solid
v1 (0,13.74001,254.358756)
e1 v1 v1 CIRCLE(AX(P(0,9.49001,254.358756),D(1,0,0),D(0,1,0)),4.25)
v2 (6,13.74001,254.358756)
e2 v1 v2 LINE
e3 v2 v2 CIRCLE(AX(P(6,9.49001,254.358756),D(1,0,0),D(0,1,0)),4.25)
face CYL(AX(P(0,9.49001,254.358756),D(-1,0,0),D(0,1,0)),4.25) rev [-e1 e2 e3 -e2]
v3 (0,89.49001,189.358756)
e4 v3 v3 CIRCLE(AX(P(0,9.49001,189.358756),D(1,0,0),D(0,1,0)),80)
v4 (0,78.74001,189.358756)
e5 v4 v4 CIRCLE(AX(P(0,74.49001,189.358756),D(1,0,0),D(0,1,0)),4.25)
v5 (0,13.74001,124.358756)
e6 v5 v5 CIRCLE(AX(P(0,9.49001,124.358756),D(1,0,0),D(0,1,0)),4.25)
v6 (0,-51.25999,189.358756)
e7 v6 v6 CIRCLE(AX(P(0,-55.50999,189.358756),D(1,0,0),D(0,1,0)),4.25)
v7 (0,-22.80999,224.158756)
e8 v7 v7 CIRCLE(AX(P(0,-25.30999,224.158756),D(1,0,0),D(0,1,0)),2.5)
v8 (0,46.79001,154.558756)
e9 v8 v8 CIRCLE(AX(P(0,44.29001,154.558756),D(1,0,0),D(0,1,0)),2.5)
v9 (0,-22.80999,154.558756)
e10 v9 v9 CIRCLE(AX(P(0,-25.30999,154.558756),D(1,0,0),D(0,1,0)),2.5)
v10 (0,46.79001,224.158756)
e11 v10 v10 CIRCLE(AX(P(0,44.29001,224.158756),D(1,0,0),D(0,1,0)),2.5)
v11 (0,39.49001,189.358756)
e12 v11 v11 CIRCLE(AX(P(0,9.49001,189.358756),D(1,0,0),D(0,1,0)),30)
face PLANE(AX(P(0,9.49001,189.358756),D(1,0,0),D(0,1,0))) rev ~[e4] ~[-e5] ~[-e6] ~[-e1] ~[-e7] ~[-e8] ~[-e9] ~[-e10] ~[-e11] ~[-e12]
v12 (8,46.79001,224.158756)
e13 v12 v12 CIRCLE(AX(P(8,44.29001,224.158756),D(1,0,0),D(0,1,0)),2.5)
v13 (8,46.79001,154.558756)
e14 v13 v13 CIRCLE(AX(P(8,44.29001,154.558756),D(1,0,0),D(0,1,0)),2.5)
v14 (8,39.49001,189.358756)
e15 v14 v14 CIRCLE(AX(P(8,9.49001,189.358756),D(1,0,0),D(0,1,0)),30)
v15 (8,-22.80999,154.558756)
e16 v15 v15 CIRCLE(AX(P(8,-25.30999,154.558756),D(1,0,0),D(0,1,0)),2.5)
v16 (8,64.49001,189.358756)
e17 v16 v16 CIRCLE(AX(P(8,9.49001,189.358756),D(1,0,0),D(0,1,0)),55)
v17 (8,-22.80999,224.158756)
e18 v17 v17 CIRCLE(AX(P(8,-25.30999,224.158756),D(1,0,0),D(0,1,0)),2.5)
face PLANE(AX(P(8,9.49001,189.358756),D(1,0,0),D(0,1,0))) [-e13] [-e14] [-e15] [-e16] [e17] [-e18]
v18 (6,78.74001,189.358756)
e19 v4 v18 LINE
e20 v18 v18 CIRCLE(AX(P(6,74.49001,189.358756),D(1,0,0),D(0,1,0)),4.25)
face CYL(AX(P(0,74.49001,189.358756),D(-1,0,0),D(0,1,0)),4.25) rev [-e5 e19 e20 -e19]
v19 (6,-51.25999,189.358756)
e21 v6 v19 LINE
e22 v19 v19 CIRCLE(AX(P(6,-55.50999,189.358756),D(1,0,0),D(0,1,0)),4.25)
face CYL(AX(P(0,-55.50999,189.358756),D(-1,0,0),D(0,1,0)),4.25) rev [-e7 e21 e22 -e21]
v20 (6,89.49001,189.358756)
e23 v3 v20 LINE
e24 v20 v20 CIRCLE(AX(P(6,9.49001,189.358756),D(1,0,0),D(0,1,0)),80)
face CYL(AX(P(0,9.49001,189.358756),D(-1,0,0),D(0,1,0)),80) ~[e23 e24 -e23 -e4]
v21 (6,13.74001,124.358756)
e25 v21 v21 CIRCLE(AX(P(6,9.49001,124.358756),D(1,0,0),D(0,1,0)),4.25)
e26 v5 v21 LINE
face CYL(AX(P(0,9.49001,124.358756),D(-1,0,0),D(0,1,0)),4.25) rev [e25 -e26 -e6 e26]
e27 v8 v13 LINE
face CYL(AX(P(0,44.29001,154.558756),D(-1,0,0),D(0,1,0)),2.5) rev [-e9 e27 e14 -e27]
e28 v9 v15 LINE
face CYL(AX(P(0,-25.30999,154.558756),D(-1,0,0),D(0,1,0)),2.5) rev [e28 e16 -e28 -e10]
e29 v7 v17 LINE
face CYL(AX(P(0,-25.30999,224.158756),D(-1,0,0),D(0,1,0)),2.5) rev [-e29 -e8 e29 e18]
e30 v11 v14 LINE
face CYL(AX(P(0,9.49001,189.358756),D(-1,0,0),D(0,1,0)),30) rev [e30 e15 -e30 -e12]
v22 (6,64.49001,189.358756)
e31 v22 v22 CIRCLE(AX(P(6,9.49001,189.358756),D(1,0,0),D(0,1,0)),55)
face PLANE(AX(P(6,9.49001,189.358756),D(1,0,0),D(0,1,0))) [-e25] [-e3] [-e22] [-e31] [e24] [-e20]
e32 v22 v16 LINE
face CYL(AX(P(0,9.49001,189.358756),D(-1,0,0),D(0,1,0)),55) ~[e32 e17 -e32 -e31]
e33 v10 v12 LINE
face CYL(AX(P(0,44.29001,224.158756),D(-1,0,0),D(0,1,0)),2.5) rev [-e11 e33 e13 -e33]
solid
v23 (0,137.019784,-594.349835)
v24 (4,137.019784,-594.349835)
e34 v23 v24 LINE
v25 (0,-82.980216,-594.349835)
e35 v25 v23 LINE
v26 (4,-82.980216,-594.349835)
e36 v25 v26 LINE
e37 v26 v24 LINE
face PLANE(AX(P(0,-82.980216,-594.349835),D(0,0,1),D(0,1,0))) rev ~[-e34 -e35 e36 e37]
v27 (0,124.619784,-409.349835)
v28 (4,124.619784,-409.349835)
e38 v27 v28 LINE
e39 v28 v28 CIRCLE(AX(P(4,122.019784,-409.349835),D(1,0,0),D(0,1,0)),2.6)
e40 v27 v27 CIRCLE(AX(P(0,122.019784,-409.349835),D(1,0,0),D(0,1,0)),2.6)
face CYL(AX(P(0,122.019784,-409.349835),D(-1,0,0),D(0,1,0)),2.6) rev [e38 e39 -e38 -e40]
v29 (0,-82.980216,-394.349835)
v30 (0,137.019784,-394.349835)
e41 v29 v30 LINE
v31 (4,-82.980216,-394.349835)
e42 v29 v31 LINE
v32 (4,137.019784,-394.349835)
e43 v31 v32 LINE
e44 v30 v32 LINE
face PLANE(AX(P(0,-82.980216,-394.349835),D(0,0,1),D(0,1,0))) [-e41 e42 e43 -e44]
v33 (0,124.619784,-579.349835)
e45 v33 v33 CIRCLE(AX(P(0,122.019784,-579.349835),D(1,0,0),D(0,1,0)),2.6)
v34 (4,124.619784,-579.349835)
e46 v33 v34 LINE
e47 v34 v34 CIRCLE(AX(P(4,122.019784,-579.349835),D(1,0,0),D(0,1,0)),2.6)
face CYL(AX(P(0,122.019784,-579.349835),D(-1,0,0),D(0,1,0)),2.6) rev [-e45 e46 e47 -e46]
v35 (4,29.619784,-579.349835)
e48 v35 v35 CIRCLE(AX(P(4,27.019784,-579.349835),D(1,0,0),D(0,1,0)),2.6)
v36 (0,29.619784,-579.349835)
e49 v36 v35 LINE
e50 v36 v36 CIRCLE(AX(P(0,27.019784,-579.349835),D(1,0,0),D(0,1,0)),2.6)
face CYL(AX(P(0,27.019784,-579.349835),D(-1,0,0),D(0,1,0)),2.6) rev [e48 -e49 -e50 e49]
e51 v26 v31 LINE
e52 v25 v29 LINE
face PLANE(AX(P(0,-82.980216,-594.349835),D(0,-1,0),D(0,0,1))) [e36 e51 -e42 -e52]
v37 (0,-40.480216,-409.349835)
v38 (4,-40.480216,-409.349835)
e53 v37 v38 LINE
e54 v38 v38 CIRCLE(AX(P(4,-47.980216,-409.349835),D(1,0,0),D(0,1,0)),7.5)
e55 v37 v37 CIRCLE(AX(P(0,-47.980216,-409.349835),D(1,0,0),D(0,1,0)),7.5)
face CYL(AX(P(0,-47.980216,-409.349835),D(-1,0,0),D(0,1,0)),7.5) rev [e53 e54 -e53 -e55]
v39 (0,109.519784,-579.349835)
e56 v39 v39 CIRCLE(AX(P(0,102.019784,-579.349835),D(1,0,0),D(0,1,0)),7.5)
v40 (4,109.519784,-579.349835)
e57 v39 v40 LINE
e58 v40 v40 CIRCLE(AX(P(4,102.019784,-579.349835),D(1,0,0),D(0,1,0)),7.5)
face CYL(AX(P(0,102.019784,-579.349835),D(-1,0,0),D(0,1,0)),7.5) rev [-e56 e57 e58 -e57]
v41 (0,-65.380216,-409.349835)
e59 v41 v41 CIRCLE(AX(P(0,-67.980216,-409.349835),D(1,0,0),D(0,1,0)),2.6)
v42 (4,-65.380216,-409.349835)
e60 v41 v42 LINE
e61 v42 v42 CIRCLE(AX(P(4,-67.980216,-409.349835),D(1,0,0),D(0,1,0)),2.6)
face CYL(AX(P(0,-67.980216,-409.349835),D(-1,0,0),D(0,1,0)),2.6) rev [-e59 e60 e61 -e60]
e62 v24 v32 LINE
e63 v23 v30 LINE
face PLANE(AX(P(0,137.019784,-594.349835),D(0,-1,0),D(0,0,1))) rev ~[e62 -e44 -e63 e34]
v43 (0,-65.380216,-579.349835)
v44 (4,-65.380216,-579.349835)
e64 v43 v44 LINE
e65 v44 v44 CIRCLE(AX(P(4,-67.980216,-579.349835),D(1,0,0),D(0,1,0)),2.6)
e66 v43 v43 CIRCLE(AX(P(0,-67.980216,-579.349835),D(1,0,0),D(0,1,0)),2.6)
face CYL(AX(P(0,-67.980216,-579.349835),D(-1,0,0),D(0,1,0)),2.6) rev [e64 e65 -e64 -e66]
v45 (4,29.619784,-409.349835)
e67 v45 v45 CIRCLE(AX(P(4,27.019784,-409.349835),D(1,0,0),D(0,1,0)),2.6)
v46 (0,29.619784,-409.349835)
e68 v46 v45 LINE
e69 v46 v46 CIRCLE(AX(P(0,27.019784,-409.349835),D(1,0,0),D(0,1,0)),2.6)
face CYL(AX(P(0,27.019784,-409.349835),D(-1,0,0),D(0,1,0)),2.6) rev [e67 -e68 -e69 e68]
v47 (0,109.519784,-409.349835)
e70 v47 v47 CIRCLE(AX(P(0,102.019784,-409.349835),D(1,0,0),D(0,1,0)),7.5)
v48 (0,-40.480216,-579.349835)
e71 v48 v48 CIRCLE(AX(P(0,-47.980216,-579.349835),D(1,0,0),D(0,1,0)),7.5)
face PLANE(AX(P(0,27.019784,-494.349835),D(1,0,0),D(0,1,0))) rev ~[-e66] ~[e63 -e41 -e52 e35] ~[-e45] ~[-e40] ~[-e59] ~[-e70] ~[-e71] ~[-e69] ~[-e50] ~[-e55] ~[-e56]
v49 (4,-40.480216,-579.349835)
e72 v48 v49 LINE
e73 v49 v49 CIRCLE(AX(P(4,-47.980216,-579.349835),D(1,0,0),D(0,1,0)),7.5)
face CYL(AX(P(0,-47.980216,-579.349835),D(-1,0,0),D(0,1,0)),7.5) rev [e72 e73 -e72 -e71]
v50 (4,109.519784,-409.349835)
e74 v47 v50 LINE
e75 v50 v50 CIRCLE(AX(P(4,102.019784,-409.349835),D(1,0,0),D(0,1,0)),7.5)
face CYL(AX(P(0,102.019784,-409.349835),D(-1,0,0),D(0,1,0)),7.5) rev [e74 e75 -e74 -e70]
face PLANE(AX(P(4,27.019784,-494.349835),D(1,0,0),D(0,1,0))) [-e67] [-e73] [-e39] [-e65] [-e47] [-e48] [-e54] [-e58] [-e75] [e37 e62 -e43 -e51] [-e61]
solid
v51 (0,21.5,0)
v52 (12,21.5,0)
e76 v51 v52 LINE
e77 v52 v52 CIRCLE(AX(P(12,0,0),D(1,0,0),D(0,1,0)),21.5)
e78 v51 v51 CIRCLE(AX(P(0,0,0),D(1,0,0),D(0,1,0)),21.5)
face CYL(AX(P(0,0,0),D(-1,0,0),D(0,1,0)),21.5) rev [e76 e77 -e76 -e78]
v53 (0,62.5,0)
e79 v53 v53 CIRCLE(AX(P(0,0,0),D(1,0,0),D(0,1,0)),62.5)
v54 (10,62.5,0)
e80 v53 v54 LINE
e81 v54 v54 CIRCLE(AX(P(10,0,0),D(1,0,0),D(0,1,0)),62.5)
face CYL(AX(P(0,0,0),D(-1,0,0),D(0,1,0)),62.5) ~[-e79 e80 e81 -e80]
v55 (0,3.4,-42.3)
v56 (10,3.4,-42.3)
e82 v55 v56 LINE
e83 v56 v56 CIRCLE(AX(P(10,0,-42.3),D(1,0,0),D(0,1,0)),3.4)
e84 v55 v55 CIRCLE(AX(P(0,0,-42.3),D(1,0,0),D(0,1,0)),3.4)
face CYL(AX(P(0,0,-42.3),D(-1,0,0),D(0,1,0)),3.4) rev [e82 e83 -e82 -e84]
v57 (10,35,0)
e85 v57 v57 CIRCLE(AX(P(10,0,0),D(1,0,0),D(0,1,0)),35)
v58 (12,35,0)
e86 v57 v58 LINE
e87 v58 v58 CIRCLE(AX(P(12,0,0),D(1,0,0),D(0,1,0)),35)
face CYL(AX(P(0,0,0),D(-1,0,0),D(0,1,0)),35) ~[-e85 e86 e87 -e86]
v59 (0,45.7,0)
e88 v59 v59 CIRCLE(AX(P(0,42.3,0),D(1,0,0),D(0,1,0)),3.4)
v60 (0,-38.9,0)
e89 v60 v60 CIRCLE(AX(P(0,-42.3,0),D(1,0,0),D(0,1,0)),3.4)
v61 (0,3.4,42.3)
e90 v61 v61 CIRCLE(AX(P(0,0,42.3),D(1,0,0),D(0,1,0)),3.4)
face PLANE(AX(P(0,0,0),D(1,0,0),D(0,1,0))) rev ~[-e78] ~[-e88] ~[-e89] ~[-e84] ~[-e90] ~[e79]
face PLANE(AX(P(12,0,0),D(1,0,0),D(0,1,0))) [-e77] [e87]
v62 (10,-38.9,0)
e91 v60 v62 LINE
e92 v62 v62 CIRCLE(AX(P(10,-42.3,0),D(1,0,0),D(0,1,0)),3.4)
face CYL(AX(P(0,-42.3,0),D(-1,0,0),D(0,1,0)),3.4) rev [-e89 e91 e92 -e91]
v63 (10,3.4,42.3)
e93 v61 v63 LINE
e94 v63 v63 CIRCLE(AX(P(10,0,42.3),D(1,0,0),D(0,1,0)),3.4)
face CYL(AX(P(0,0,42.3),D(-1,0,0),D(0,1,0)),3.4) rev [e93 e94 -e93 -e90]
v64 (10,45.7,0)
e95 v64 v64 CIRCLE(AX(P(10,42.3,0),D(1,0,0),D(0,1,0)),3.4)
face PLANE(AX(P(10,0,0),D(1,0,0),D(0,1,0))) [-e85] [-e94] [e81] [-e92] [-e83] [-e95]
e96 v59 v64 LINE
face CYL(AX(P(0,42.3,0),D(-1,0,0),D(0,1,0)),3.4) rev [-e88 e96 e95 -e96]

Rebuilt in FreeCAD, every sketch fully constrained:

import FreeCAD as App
import Part
import Sketcher

V = App.Vector


def add_polygon(sketch, points):
    """Adds a closed chain of lines whose ends are joined by coincident constraints."""
    first, n = sketch.GeometryCount, len(points)
    for a, b in zip(points, points[1:] + points[:1]):
        sketch.addGeometry(Part.LineSegment(App.Vector(*a, 0), App.Vector(*b, 0)), False)
    for i in range(n):
        sketch.addConstraint(Sketcher.Constraint("Coincident", first + i, 2, first + (i + 1) % n, 1))

doc = App.newDocument("Part")
body = doc.addObject("PartDesign::Body", "Body")

# Sketch on YZ plane
sketch1 = body.newObject("Sketcher::SketchObject", "Sketch")
sketch1.AttachmentSupport = (doc.getObject("YZ_Plane"), [""])
sketch1.MapMode = "FlatFace"
sketch1.addGeometry(Part.Circle(V(0, 0, 0), V(0, 0, 1), 62.5), False)
sketch1.addGeometry(Part.Circle(V(0, -42.3, 0), V(0, 0, 1), 3.4), False)
sketch1.addGeometry(Part.Circle(V(-42.3, 0, 0), V(0, 0, 1), 3.4), False)
sketch1.addGeometry(Part.Circle(V(0, 0, 0), V(0, 0, 1), 35), False)
sketch1.addGeometry(Part.Circle(V(42.3, 0, 0), V(0, 0, 1), 3.4), False)
sketch1.addGeometry(Part.Circle(V(0, 42.3, 0), V(0, 0, 1), 3.4), False)
sketch1.addConstraint(Sketcher.Constraint("Coincident", 0, 3, -1, 1))
sketch1.addConstraint(Sketcher.Constraint("Coincident", 3, 3, -1, 1))
sketch1.addConstraint(Sketcher.Constraint("Equal", 1, 2))
sketch1.addConstraint(Sketcher.Constraint("Equal", 2, 4))
sketch1.addConstraint(Sketcher.Constraint("Equal", 4, 5))
sketch1.addConstraint(Sketcher.Constraint("Symmetric", 2, 3, 4, 3, -1, 1))
sketch1.addConstraint(Sketcher.Constraint("Symmetric", 1, 3, 5, 3, -1, 1))
sketch1.addConstraint(Sketcher.Constraint("PointOnObject", 1, 3, -2))
sketch1.addConstraint(Sketcher.Constraint("PointOnObject", 2, 3, -1))
sketch1.addConstraint(Sketcher.Constraint("Diameter", 0, 125.0))
sketch1.addConstraint(Sketcher.Constraint("Diameter", 3, 70.0))
sketch1.addConstraint(Sketcher.Constraint("Diameter", 1, 6.8))
sketch1.addConstraint(Sketcher.Constraint("DistanceY", 1, 3, -1, 1, 42.3))
sketch1.addConstraint(Sketcher.Constraint("DistanceX", 2, 3, -1, 1, 42.3))
pad1 = body.newObject("PartDesign::Pad", "Pad")
pad1.Profile = sketch1
pad1.Length = 10

# Sketch on YZ plane
sketch2 = body.newObject("Sketcher::SketchObject", "Sketch001")
sketch2.AttachmentSupport = (doc.getObject("YZ_Plane"), [""])
sketch2.MapMode = "FlatFace"
sketch2.addGeometry(Part.Circle(V(0, 0, 0), V(0, 0, 1), 35), False)
sketch2.addGeometry(Part.Circle(V(0, 0, 0), V(0, 0, 1), 21.5), False)
sketch2.addConstraint(Sketcher.Constraint("Coincident", 0, 3, -1, 1))
sketch2.addConstraint(Sketcher.Constraint("Coincident", 1, 3, -1, 1))
sketch2.addConstraint(Sketcher.Constraint("Diameter", 0, 70.0))
sketch2.addConstraint(Sketcher.Constraint("Diameter", 1, 43.0))
pad2 = body.newObject("PartDesign::Pad", "Pad001")
pad2.Profile = sketch2
pad2.Length = 12
body2 = doc.addObject("PartDesign::Body", "Body001")

# Sketch on YZ plane
sketch3 = body2.newObject("Sketcher::SketchObject", "Sketch002")
sketch3.AttachmentSupport = (doc.getObject("YZ_Plane001"), [""])
sketch3.MapMode = "FlatFace"
sketch3.addGeometry(Part.Circle(V(9.49001, 189.358756, 0), V(0, 0, 1), 80), False)
sketch3.addGeometry(Part.Circle(V(9.49001, 124.358756, 0), V(0, 0, 1), 4.25), False)
sketch3.addGeometry(Part.Circle(V(-55.50999, 189.358756, 0), V(0, 0, 1), 4.25), False)
sketch3.addGeometry(Part.Circle(V(9.49001, 189.358756, 0), V(0, 0, 1), 55), False)
sketch3.addGeometry(Part.Circle(V(74.49001, 189.358756, 0), V(0, 0, 1), 4.25), False)
sketch3.addGeometry(Part.Circle(V(9.49001, 254.358756, 0), V(0, 0, 1), 4.25), False)
sketch3.addConstraint(Sketcher.Constraint("Coincident", 3, 3, 0, 3))
sketch3.addConstraint(Sketcher.Constraint("Equal", 1, 2))
sketch3.addConstraint(Sketcher.Constraint("Equal", 2, 4))
sketch3.addConstraint(Sketcher.Constraint("Equal", 4, 5))
sketch3.addConstraint(Sketcher.Constraint("Horizontal", 0, 3, 2, 3))
sketch3.addConstraint(Sketcher.Constraint("Horizontal", 3, 3, 4, 3))
sketch3.addConstraint(Sketcher.Constraint("Vertical", 0, 3, 1, 3))
sketch3.addConstraint(Sketcher.Constraint("Vertical", 3, 3, 5, 3))
sketch3.addConstraint(Sketcher.Constraint("Diameter", 0, 160.0))
sketch3.addConstraint(Sketcher.Constraint("Diameter", 3, 110.0))
sketch3.addConstraint(Sketcher.Constraint("Diameter", 1, 8.5))
sketch3.addConstraint(Sketcher.Constraint("DistanceY", 1, 3, 0, 3, 65.0))
sketch3.addConstraint(Sketcher.Constraint("DistanceX", 2, 3, 0, 3, 65.0))
sketch3.addConstraint(Sketcher.Constraint("DistanceX", 0, 3, 4, 3, 65.0))
sketch3.addConstraint(Sketcher.Constraint("DistanceY", 0, 3, 5, 3, 65.0))
sketch3.addConstraint(Sketcher.Constraint("DistanceX", -1, 1, 0, 3, 9.49001))
sketch3.addConstraint(Sketcher.Constraint("DistanceY", -1, 1, 0, 3, 189.358756))
pad3 = body2.newObject("PartDesign::Pad", "Pad002")
pad3.Profile = sketch3
pad3.Length = 6

# Sketch on YZ plane
sketch4 = body2.newObject("Sketcher::SketchObject", "Sketch003")
sketch4.AttachmentSupport = (doc.getObject("YZ_Plane001"), [""])
sketch4.MapMode = "FlatFace"
sketch4.addGeometry(Part.Circle(V(9.49001, 189.358756, 0), V(0, 0, 1), 55), False)
sketch4.addGeometry(Part.Circle(V(-25.30999, 154.558756, 0), V(0, 0, 1), 2.5), False)
sketch4.addGeometry(Part.Circle(V(9.49001, 189.358756, 0), V(0, 0, 1), 30), False)
sketch4.addGeometry(Part.Circle(V(44.29001, 154.558756, 0), V(0, 0, 1), 2.5), False)
sketch4.addGeometry(Part.Circle(V(-25.30999, 224.158756, 0), V(0, 0, 1), 2.5), False)
sketch4.addGeometry(Part.Circle(V(44.29001, 224.158756, 0), V(0, 0, 1), 2.5), False)
sketch4.addConstraint(Sketcher.Constraint("Coincident", 2, 3, 0, 3))
sketch4.addConstraint(Sketcher.Constraint("Equal", 1, 3))
sketch4.addConstraint(Sketcher.Constraint("Equal", 3, 4))
sketch4.addConstraint(Sketcher.Constraint("Equal", 4, 5))
sketch4.addConstraint(Sketcher.Constraint("Horizontal", 1, 3, 3, 3))
sketch4.addConstraint(Sketcher.Constraint("Horizontal", 4, 3, 5, 3))
sketch4.addConstraint(Sketcher.Constraint("Vertical", 1, 3, 4, 3))
sketch4.addConstraint(Sketcher.Constraint("Vertical", 3, 3, 5, 3))
sketch4.addConstraint(Sketcher.Constraint("Diameter", 0, 110.0))
sketch4.addConstraint(Sketcher.Constraint("Diameter", 1, 5.0))
sketch4.addConstraint(Sketcher.Constraint("Diameter", 2, 60.0))
sketch4.addConstraint(Sketcher.Constraint("DistanceX", 1, 3, 0, 3, 34.8))
sketch4.addConstraint(Sketcher.Constraint("DistanceY", 1, 3, 0, 3, 34.8))
sketch4.addConstraint(Sketcher.Constraint("DistanceX", 0, 3, 3, 3, 34.8))
sketch4.addConstraint(Sketcher.Constraint("DistanceY", 0, 3, 4, 3, 34.8))
sketch4.addConstraint(Sketcher.Constraint("DistanceX", -1, 1, 0, 3, 9.49001))
sketch4.addConstraint(Sketcher.Constraint("DistanceY", -1, 1, 0, 3, 189.358756))
pad4 = body2.newObject("PartDesign::Pad", "Pad003")
pad4.Profile = sketch4
pad4.Length = 8
body3 = doc.addObject("PartDesign::Body", "Body002")

# Sketch on YZ plane
sketch5 = body3.newObject("Sketcher::SketchObject", "Sketch004")
sketch5.AttachmentSupport = (doc.getObject("YZ_Plane002"), [""])
sketch5.MapMode = "FlatFace"
add_polygon(sketch5, [(-82.980216, -394.349835), (-82.980216, -594.349835), (137.019784, -594.349835), (137.019784, -394.349835)])  # lines 0-3
sketch5.addGeometry(Part.Circle(V(-67.980216, -579.349835, 0), V(0, 0, 1), 2.6), False)  # 4
sketch5.addGeometry(Part.Circle(V(-47.980216, -579.349835, 0), V(0, 0, 1), 7.5), False)  # 5
sketch5.addGeometry(Part.Circle(V(27.019784, -579.349835, 0), V(0, 0, 1), 2.6), False)  # 6
sketch5.addGeometry(Part.Circle(V(102.019784, -579.349835, 0), V(0, 0, 1), 7.5), False)  # 7
sketch5.addGeometry(Part.Circle(V(122.019784, -579.349835, 0), V(0, 0, 1), 2.6), False)  # 8
sketch5.addGeometry(Part.Circle(V(-67.980216, -409.349835, 0), V(0, 0, 1), 2.6), False)  # 9
sketch5.addGeometry(Part.Circle(V(-47.980216, -409.349835, 0), V(0, 0, 1), 7.5), False)  # 10
sketch5.addGeometry(Part.Circle(V(27.019784, -409.349835, 0), V(0, 0, 1), 2.6), False)  # 11
sketch5.addGeometry(Part.Circle(V(102.019784, -409.349835, 0), V(0, 0, 1), 7.5), False)  # 12
sketch5.addGeometry(Part.Circle(V(122.019784, -409.349835, 0), V(0, 0, 1), 2.6), False)  # 13
sketch5.addConstraint(Sketcher.Constraint("Vertical", 0))
sketch5.addConstraint(Sketcher.Constraint("Horizontal", 1))
sketch5.addConstraint(Sketcher.Constraint("Vertical", 2))
sketch5.addConstraint(Sketcher.Constraint("Horizontal", 3))
sketch5.addConstraint(Sketcher.Constraint("Equal", 4, 6))
sketch5.addConstraint(Sketcher.Constraint("Equal", 5, 7))
sketch5.addConstraint(Sketcher.Constraint("Equal", 6, 8))
sketch5.addConstraint(Sketcher.Constraint("Equal", 8, 9))
sketch5.addConstraint(Sketcher.Constraint("Equal", 7, 10))
sketch5.addConstraint(Sketcher.Constraint("Equal", 9, 11))
sketch5.addConstraint(Sketcher.Constraint("Equal", 10, 12))
sketch5.addConstraint(Sketcher.Constraint("Equal", 11, 13))
sketch5.addConstraint(Sketcher.Constraint("Horizontal", 4, 3, 5, 3))
sketch5.addConstraint(Sketcher.Constraint("Horizontal", 5, 3, 6, 3))
sketch5.addConstraint(Sketcher.Constraint("Horizontal", 6, 3, 7, 3))
sketch5.addConstraint(Sketcher.Constraint("Horizontal", 7, 3, 8, 3))
sketch5.addConstraint(Sketcher.Constraint("Horizontal", 9, 3, 10, 3))
sketch5.addConstraint(Sketcher.Constraint("Horizontal", 10, 3, 11, 3))
sketch5.addConstraint(Sketcher.Constraint("Horizontal", 11, 3, 12, 3))
sketch5.addConstraint(Sketcher.Constraint("Horizontal", 12, 3, 13, 3))
sketch5.addConstraint(Sketcher.Constraint("Vertical", 4, 3, 9, 3))
sketch5.addConstraint(Sketcher.Constraint("Vertical", 5, 3, 10, 3))
sketch5.addConstraint(Sketcher.Constraint("Vertical", 6, 3, 11, 3))
sketch5.addConstraint(Sketcher.Constraint("Vertical", 7, 3, 12, 3))
sketch5.addConstraint(Sketcher.Constraint("Vertical", 8, 3, 13, 3))
sketch5.addConstraint(Sketcher.Constraint("Diameter", 5, 15.0))
sketch5.addConstraint(Sketcher.Constraint("Diameter", 4, 5.2))
sketch5.addConstraint(Sketcher.Constraint("DistanceX", 1, 1, 1, 2, 220.0))
sketch5.addConstraint(Sketcher.Constraint("DistanceY", 0, 2, 0, 1, 200.0))
sketch5.addConstraint(Sketcher.Constraint("DistanceX", 4, 3, 5, 3, 20.0))
sketch5.addConstraint(Sketcher.Constraint("DistanceX", 5, 3, 6, 3, 75.0))
sketch5.addConstraint(Sketcher.Constraint("DistanceX", 6, 3, 7, 3, 75.0))
sketch5.addConstraint(Sketcher.Constraint("DistanceX", 7, 3, 8, 3, 20.0))
sketch5.addConstraint(Sketcher.Constraint("DistanceY", 4, 3, 9, 3, 170.0))
sketch5.addConstraint(Sketcher.Constraint("DistanceX", 0, 2, 4, 3, 15.0))
sketch5.addConstraint(Sketcher.Constraint("DistanceY", 0, 2, 4, 3, 15.0))
sketch5.addConstraint(Sketcher.Constraint("DistanceX", 4, 3, -1, 1, 67.980216))
sketch5.addConstraint(Sketcher.Constraint("DistanceY", 4, 3, -1, 1, 579.349835))
pad5 = body3.newObject("PartDesign::Pad", "Pad004")
pad5.Profile = sketch5
pad5.Length = 4

doc.recompute()
